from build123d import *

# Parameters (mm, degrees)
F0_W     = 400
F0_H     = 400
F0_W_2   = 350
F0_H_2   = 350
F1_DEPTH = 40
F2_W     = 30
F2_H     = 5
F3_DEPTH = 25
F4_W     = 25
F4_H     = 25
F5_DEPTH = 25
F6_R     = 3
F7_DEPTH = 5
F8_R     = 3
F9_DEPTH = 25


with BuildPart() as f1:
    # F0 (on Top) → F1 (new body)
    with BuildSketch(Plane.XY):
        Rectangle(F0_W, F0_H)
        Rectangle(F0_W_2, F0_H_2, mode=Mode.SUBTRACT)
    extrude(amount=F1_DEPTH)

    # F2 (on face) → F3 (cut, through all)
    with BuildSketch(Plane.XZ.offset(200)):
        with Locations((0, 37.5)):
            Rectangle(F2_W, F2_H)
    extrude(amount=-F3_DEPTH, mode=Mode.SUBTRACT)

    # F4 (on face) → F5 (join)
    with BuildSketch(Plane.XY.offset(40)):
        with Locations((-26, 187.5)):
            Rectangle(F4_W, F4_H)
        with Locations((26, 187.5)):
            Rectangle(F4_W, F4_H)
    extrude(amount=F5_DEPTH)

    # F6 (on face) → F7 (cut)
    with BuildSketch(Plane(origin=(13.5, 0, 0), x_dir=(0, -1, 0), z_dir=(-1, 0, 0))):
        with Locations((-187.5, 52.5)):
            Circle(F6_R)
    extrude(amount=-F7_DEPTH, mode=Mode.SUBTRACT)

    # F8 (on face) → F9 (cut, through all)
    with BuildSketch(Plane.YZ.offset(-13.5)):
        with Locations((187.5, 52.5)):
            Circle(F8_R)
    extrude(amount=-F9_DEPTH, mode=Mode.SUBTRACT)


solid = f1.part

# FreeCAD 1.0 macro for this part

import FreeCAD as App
import Part
import Sketcher

V = App.Vector


def add_polygon(sketch, points):
    """Adds a closed chain of lines whose ends are joined by coincident constraints."""
    first, n = sketch.GeometryCount, len(points)
    for a, b in zip(points, points[1:] + points[:1]):
        sketch.addGeometry(Part.LineSegment(App.Vector(*a, 0), App.Vector(*b, 0)), False)
    for i in range(n):
        sketch.addConstraint(Sketcher.Constraint("Coincident", first + i, 2, first + (i + 1) % n, 1))

doc = App.newDocument("Part")
params = doc.addObject("Spreadsheet::Sheet", "Params")
for row, (alias, value) in enumerate([
    ("sketch1_width", "400 mm"),
    ("sketch1_width2", "350 mm"),
    ("pad1_length", "40 mm"),
    ("sketch2_width", "30 mm"),
    ("sketch2_height", "5 mm"),
    ("pocket1_length", "25 mm"),
    ("sketch3_width", "25 mm"),
    ("pad2_length", "25 mm"),
    ("sketch4_diameter", "6 mm"),
    ("pocket2_length", "5 mm"),
    ("sketch5_diameter", "6 mm"),
], start=1):
    params.set(f"A{row}", alias)
    params.set(f"B{row}", "=" + value)
    params.setAlias(f"B{row}", alias)

body = doc.addObject("PartDesign::Body", "Body")

sketch1 = body.newObject("Sketcher::SketchObject", "Sketch")
sketch1.AttachmentSupport = (doc.getObject("XY_Plane"), [""])
sketch1.MapMode = "FlatFace"
add_polygon(sketch1, [(-200, 200), (-200, -200), (200, -200), (200, 200)])
add_polygon(sketch1, [(175, -175), (-175, -175), (-175, 175), (175, 175)])
sketch1.addConstraint(Sketcher.Constraint("Vertical", 0))
sketch1.addConstraint(Sketcher.Constraint("Horizontal", 1))
sketch1.addConstraint(Sketcher.Constraint("Vertical", 2))
sketch1.addConstraint(Sketcher.Constraint("Horizontal", 3))
sketch1.addConstraint(Sketcher.Constraint("Horizontal", 4))
sketch1.addConstraint(Sketcher.Constraint("Vertical", 5))
sketch1.addConstraint(Sketcher.Constraint("Horizontal", 6))
sketch1.addConstraint(Sketcher.Constraint("Vertical", 7))
sketch1.addConstraint(Sketcher.Constraint("Symmetric", 0, 2, 2, 2, -1, 1))
sketch1.addConstraint(Sketcher.Constraint("Symmetric", 4, 2, 6, 2, -1, 1))
sketch1.addConstraint(Sketcher.Constraint("Equal", 3, 0))
sketch1.addConstraint(Sketcher.Constraint("Equal", 6, 5))
sketch1.addConstraint(Sketcher.Constraint("DistanceX", 1, 1, 1, 2, 400.0))
sketch1.addConstraint(Sketcher.Constraint("DistanceX", 4, 2, 4, 1, 350.0))
sketch1.setExpression("Constraints[20]", "Params.sketch1_width")
sketch1.setExpression("Constraints[21]", "Params.sketch1_width2")
pad1 = body.newObject("PartDesign::Pad", "Pad")
pad1.Profile = sketch1
pad1.setExpression("Length", "Params.pad1_length")

sketch2 = body.newObject("Sketcher::SketchObject", "Sketch001")
sketch2.AttachmentSupport = (doc.getObject("XZ_Plane"), [""])
sketch2.MapMode = "FlatFace"
sketch2.AttachmentOffset = App.Placement(V(0, 0, 200), App.Rotation())
add_polygon(sketch2, [(-15, 40), (-15, 35), (15, 35), (15, 40)])
sketch2.addConstraint(Sketcher.Constraint("Vertical", 0))
sketch2.addConstraint(Sketcher.Constraint("Horizontal", 1))
sketch2.addConstraint(Sketcher.Constraint("Vertical", 2))
sketch2.addConstraint(Sketcher.Constraint("Horizontal", 3))
sketch2.addConstraint(Sketcher.Constraint("DistanceX", 1, 1, 1, 2, 30.0))
sketch2.addConstraint(Sketcher.Constraint("DistanceY", 0, 2, 0, 1, 5.0))
sketch2.addConstraint(Sketcher.Constraint("DistanceX", 0, 2, -1, 1, 15.0))
sketch2.addConstraint(Sketcher.Constraint("DistanceY", -1, 1, 0, 2, 35.0))
sketch2.setExpression("Constraints[8]", "Params.sketch2_width")
sketch2.setExpression("Constraints[9]", "Params.sketch2_height")
pocket1 = body.newObject("PartDesign::Pocket", "Pocket")
pocket1.Profile = sketch2
pocket1.setExpression("Length", "Params.pocket1_length")

sketch3 = body.newObject("Sketcher::SketchObject", "Sketch002")
sketch3.AttachmentSupport = (doc.getObject("XY_Plane"), [""])
sketch3.MapMode = "FlatFace"
sketch3.AttachmentOffset = App.Placement(V(0, 0, 40), App.Rotation())
add_polygon(sketch3, [(-38, 200), (-38, 175), (-14, 175), (-14, 200)])
add_polygon(sketch3, [(14, 200), (14, 175), (38, 175), (38, 200)])
sketch3.addConstraint(Sketcher.Constraint("Vertical", 0))
sketch3.addConstraint(Sketcher.Constraint("Horizontal", 1))
sketch3.addConstraint(Sketcher.Constraint("Vertical", 2))
sketch3.addConstraint(Sketcher.Constraint("Horizontal", 3))
sketch3.addConstraint(Sketcher.Constraint("Vertical", 4))
sketch3.addConstraint(Sketcher.Constraint("Horizontal", 5))
sketch3.addConstraint(Sketcher.Constraint("Vertical", 6))
sketch3.addConstraint(Sketcher.Constraint("Horizontal", 7))
sketch3.addConstraint(Sketcher.Constraint("Symmetric", 1, 2, 4, 2, -2))
sketch3.addConstraint(Sketcher.Constraint("Symmetric", 3, 2, 6, 2, -2))
sketch3.addConstraint(Sketcher.Constraint("Equal", 7, 0))
sketch3.addConstraint(Sketcher.Constraint("DistanceX", 1, 1, 1, 2, 25.0))
sketch3.addConstraint(Sketcher.Constraint("DistanceY", -1, 1, 0, 2, 175.0))
sketch3.addConstraint(Sketcher.Constraint("DistanceX", 1, 2, 4, 2, 27.0))
sketch3.setExpression("Constraints[19]", "Params.sketch3_width")
pad2 = body.newObject("PartDesign::Pad", "Pad001")
pad2.Profile = sketch3
pad2.setExpression("Length", "Params.pad2_length")

sketch4 = body.newObject("Sketcher::SketchObject", "Sketch003")
sketch4.AttachmentSupport = (doc.getObject("YZ_Plane"), [""])
sketch4.MapMode = "FlatFace"
sketch4.AttachmentOffset = App.Placement(V(0, 0, 13.5), App.Rotation())
sketch4.addGeometry(Part.Circle(V(187.5, 52.5, 0), V(0, 0, 1), 3), False)
sketch4.addConstraint(Sketcher.Constraint("Diameter", 0, 6.0))
sketch4.addConstraint(Sketcher.Constraint("DistanceX", -1, 1, 0, 3, 187.5))
sketch4.addConstraint(Sketcher.Constraint("DistanceY", -1, 1, 0, 3, 52.5))
sketch4.setExpression("Constraints[0]", "Params.sketch4_diameter")
pocket2 = body.newObject("PartDesign::Pocket", "Pocket001")
pocket2.Profile = sketch4
pocket2.setExpression("Length", "Params.pocket2_length")
pocket2.Reversed = True

sketch5 = body.newObject("Sketcher::SketchObject", "Sketch004")
sketch5.AttachmentSupport = (doc.getObject("YZ_Plane"), [""])
sketch5.MapMode = "FlatFace"
sketch5.AttachmentOffset = App.Placement(V(0, 0, -13.5), App.Rotation())
sketch5.addGeometry(Part.Circle(V(187.5, 52.5, 0), V(0, 0, 1), 3), False)
sketch5.addConstraint(Sketcher.Constraint("Diameter", 0, 6.0))
sketch5.addConstraint(Sketcher.Constraint("DistanceX", -1, 1, 0, 3, 187.5))
sketch5.addConstraint(Sketcher.Constraint("DistanceY", -1, 1, 0, 3, 52.5))
sketch5.setExpression("Constraints[0]", "Params.sketch5_diameter")
pocket3 = body.newObject("PartDesign::Pocket", "Pocket002")
pocket3.Profile = sketch5
pocket3.Type = "ThroughAll"

doc.recompute()
